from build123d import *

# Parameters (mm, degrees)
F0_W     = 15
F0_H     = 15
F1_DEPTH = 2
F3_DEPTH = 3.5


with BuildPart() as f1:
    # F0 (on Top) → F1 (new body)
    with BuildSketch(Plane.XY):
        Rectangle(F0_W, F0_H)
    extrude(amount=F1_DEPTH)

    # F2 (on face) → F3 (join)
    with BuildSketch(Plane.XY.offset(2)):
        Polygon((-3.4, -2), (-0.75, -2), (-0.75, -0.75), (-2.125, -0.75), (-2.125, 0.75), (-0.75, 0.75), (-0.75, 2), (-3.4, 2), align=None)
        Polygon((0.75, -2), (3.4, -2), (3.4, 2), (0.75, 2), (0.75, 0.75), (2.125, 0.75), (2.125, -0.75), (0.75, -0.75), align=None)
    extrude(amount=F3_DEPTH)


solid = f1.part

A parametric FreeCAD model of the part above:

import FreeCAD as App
import Part
import Sketcher

V = App.Vector


def add_polygon(sketch, points):
    """Adds a closed chain of lines whose ends are joined by coincident constraints."""
    first, n = sketch.GeometryCount, len(points)
    for a, b in zip(points, points[1:] + points[:1]):
        sketch.addGeometry(Part.LineSegment(App.Vector(*a, 0), App.Vector(*b, 0)), False)
    for i in range(n):
        sketch.addConstraint(Sketcher.Constraint("Coincident", first + i, 2, first + (i + 1) % n, 1))

doc = App.newDocument("Part")
body = doc.addObject("PartDesign::Body", "Body")

# Sketch on XY plane
sketch1 = body.newObject("Sketcher::SketchObject", "Sketch")
sketch1.AttachmentSupport = (doc.getObject("XY_Plane"), [""])
sketch1.MapMode = "FlatFace"
add_polygon(sketch1, [(-8, 8), (-8, -8), (8, -8), (8, 8)])  # lines 0-3
sketch1.addConstraint([
    Sketcher.Constraint("Vertical", 0),
    Sketcher.Constraint("Horizontal", 1),
    Sketcher.Constraint("Vertical", 2),
    Sketcher.Constraint("Horizontal", 3),
    Sketcher.Constraint("Symmetric", 0, 2, 2, 2, -1, 1),
    Sketcher.Constraint("Equal", 3, 0),
    Sketcher.Constraint("DistanceX", 1, 1, 1, 2, 15.0),
])
pad1 = body.newObject("PartDesign::Pad", "Pad")
pad1.Profile = sketch1
pad1.Length = 2

# Sketch on XY plane
sketch2 = body.newObject("Sketcher::SketchObject", "Sketch001")
sketch2.AttachmentSupport = (doc.getObject("XY_Plane"), [""])
sketch2.MapMode = "FlatFace"
sketch2.AttachmentOffset = App.Placement(V(0, 0, 2), App.Rotation())
add_polygon(sketch2, [(-3.4, -2), (-0.8, -2), (-0.8, -0.8), (-2.1, -0.8), (-2.1, 0.8), (-0.8, 0.8), (-0.8, 2), (-3.4, 2)])  # lines 0-7
add_polygon(sketch2, [(0.8, -2), (3.4, -2), (3.4, 2), (0.8, 2), (0.8, 0.8), (2.1, 0.8), (2.1, -0.8), (0.8, -0.8)])  # lines 8-15
sketch2.addConstraint([
    Sketcher.Constraint("Horizontal", 0),
    Sketcher.Constraint("Vertical", 1),
    Sketcher.Constraint("Horizontal", 2),
    Sketcher.Constraint("Vertical", 3),
    Sketcher.Constraint("Horizontal", 4),
    Sketcher.Constraint("Vertical", 5),
    Sketcher.Constraint("Horizontal", 6),
    Sketcher.Constraint("Vertical", 7),
    Sketcher.Constraint("Horizontal", 8),
    Sketcher.Constraint("Vertical", 9),
    Sketcher.Constraint("Horizontal", 10),
    Sketcher.Constraint("Vertical", 11),
    Sketcher.Constraint("Horizontal", 12),
    Sketcher.Constraint("Vertical", 13),
    Sketcher.Constraint("Horizontal", 14),
    Sketcher.Constraint("Vertical", 15),
    Sketcher.Constraint("Symmetric", 6, 2, 8, 2, -1, 1),
    Sketcher.Constraint("Symmetric", 0, 2, 10, 2, -1, 1),
    Sketcher.Constraint("Symmetric", 2, 2, 12, 2, -1, 1),
    Sketcher.Constraint("Symmetric", 4, 2, 14, 2, -1, 1),
    Sketcher.Constraint("Symmetric", 5, 2, 10, 2, -2),
    Sketcher.Constraint("Horizontal", 4, 2, 11, 2),
    Sketcher.Constraint("DistanceY", 7, 2, 7, 1, 4.0),
    Sketcher.Constraint("DistanceY", 3, 1, 3, 2, 1.5),
    Sketcher.Constraint("DistanceX", 0, 1, 0, 2, 2.65),
    Sketcher.Constraint("DistanceX", 6, 2, -1, 1, 3.4),
    Sketcher.Constraint("DistanceX", 2, 2, 2, 1, 1.375),
])
pad2 = body.newObject("PartDesign::Pad", "Pad001")
pad2.Profile = sketch2
pad2.Length = 3.5

doc.recompute()
